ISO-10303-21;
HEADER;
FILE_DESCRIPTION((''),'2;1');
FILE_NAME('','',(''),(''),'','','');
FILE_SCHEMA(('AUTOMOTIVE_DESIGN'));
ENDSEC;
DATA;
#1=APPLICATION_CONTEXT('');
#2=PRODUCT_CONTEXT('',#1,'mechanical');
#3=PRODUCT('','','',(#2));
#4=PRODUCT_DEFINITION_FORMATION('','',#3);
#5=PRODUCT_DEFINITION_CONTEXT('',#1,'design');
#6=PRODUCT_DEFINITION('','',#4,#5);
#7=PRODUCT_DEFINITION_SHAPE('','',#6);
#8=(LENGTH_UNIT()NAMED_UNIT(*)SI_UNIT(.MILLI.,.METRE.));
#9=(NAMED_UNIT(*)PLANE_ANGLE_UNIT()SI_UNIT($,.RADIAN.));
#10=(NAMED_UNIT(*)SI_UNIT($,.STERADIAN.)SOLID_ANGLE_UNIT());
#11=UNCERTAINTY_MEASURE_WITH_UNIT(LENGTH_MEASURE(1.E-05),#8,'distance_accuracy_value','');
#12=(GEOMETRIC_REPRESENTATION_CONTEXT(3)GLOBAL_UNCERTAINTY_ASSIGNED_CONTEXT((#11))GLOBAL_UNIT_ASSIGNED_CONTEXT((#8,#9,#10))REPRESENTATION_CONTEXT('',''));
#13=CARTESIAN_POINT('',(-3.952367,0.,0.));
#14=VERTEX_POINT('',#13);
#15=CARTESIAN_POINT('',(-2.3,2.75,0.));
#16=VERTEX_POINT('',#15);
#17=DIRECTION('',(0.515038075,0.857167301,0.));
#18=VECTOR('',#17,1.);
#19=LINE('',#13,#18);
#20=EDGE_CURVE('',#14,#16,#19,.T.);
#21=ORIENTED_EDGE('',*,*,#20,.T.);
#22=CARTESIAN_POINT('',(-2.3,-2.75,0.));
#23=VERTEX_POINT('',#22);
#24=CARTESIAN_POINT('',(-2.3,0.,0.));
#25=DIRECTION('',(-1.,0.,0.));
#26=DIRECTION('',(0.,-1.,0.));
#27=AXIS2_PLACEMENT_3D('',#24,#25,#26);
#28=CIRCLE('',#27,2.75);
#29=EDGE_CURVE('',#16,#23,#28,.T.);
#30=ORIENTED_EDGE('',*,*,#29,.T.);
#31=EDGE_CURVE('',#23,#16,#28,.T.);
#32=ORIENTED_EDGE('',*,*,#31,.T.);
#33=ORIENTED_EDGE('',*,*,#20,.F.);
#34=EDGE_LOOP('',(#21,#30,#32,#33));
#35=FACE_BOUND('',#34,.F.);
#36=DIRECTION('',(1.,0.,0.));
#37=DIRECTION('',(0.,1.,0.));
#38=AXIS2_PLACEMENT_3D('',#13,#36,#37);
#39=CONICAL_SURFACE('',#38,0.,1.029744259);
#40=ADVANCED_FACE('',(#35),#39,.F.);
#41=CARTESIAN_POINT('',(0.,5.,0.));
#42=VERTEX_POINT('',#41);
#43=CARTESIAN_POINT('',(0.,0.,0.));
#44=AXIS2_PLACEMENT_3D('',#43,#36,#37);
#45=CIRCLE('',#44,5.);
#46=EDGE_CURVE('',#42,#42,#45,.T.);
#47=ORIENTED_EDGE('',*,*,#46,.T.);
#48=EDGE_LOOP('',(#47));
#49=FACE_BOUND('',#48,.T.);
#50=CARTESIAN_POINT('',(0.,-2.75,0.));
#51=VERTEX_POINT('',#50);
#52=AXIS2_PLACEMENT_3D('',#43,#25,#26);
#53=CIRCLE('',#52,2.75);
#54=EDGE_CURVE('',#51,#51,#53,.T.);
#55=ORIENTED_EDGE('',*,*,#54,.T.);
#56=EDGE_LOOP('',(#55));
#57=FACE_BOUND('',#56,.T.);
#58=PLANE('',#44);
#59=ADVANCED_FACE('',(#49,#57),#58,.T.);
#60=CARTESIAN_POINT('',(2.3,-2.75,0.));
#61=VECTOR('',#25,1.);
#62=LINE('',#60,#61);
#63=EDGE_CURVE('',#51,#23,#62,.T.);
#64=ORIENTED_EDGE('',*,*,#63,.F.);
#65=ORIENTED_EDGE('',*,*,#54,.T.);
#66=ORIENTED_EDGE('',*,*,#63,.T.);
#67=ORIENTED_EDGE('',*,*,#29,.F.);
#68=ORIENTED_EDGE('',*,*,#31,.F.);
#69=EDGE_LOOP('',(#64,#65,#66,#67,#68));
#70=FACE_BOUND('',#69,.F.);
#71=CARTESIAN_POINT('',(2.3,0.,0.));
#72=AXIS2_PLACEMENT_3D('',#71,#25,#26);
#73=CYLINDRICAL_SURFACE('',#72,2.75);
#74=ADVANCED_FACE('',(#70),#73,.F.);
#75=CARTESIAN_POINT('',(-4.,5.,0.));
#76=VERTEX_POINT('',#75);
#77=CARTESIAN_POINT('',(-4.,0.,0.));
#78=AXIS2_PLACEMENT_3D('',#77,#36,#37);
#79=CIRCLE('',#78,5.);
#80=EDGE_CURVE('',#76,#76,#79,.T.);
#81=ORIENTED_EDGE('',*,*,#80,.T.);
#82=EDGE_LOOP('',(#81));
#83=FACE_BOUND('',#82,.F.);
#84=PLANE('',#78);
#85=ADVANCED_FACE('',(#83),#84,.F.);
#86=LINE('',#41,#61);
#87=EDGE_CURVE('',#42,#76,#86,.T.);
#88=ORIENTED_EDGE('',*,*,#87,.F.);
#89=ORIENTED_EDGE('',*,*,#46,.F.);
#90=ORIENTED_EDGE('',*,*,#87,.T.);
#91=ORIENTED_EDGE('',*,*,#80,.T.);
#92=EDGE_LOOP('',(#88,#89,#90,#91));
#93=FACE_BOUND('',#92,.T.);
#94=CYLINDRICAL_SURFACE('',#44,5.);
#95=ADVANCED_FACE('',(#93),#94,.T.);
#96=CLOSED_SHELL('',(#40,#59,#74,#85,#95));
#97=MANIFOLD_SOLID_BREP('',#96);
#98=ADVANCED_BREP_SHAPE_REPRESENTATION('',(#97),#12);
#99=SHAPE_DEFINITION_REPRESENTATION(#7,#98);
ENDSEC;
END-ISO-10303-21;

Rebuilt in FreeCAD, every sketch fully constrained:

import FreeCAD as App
import Part
import Sketcher

doc = App.newDocument("Part")
body = doc.addObject("PartDesign::Body", "Body")

# Sketch on YZ plane
sketch1 = body.newObject("Sketcher::SketchObject", "Sketch")
sketch1.AttachmentSupport = (doc.getObject("YZ_Plane"), [""])
sketch1.MapMode = "FlatFace"
sketch1.addGeometry(Part.Circle(App.Vector(0, 0, 0), App.Vector(0, 0, 1), 5), False)
sketch1.addConstraint([
    Sketcher.Constraint("Coincident", 0, 3, -1, 1),
    Sketcher.Constraint("Diameter", 0, 10.0),
])
pad1 = body.newObject("PartDesign::Pad", "Pad")
pad1.Profile = sketch1
pad1.Length = 4
pad1.Reversed = True

# Sketch on YZ plane
sketch2 = body.newObject("Sketcher::SketchObject", "Sketch001")
sketch2.AttachmentSupport = (doc.getObject("YZ_Plane"), [""])
sketch2.MapMode = "FlatFace"
sketch2.addGeometry(Part.Circle(App.Vector(0, 0, 0), App.Vector(0, 0, 1), 2.8), False)
sketch2.addConstraint([
    Sketcher.Constraint("Coincident", 0, 3, -1, 1),
    Sketcher.Constraint("Diameter", 0, 5.5),
])
doc.recompute()
hole = body.newObject("PartDesign::Hole", "Hole")
hole.Profile = sketch2
hole.ThreadType = "None"
hole.Diameter = 5.5
hole.DepthType = "Dimension"
hole.Depth = 2.3
hole.DrillPoint = "Angled"
hole.DrillPointAngle = 118

doc.recompute()
